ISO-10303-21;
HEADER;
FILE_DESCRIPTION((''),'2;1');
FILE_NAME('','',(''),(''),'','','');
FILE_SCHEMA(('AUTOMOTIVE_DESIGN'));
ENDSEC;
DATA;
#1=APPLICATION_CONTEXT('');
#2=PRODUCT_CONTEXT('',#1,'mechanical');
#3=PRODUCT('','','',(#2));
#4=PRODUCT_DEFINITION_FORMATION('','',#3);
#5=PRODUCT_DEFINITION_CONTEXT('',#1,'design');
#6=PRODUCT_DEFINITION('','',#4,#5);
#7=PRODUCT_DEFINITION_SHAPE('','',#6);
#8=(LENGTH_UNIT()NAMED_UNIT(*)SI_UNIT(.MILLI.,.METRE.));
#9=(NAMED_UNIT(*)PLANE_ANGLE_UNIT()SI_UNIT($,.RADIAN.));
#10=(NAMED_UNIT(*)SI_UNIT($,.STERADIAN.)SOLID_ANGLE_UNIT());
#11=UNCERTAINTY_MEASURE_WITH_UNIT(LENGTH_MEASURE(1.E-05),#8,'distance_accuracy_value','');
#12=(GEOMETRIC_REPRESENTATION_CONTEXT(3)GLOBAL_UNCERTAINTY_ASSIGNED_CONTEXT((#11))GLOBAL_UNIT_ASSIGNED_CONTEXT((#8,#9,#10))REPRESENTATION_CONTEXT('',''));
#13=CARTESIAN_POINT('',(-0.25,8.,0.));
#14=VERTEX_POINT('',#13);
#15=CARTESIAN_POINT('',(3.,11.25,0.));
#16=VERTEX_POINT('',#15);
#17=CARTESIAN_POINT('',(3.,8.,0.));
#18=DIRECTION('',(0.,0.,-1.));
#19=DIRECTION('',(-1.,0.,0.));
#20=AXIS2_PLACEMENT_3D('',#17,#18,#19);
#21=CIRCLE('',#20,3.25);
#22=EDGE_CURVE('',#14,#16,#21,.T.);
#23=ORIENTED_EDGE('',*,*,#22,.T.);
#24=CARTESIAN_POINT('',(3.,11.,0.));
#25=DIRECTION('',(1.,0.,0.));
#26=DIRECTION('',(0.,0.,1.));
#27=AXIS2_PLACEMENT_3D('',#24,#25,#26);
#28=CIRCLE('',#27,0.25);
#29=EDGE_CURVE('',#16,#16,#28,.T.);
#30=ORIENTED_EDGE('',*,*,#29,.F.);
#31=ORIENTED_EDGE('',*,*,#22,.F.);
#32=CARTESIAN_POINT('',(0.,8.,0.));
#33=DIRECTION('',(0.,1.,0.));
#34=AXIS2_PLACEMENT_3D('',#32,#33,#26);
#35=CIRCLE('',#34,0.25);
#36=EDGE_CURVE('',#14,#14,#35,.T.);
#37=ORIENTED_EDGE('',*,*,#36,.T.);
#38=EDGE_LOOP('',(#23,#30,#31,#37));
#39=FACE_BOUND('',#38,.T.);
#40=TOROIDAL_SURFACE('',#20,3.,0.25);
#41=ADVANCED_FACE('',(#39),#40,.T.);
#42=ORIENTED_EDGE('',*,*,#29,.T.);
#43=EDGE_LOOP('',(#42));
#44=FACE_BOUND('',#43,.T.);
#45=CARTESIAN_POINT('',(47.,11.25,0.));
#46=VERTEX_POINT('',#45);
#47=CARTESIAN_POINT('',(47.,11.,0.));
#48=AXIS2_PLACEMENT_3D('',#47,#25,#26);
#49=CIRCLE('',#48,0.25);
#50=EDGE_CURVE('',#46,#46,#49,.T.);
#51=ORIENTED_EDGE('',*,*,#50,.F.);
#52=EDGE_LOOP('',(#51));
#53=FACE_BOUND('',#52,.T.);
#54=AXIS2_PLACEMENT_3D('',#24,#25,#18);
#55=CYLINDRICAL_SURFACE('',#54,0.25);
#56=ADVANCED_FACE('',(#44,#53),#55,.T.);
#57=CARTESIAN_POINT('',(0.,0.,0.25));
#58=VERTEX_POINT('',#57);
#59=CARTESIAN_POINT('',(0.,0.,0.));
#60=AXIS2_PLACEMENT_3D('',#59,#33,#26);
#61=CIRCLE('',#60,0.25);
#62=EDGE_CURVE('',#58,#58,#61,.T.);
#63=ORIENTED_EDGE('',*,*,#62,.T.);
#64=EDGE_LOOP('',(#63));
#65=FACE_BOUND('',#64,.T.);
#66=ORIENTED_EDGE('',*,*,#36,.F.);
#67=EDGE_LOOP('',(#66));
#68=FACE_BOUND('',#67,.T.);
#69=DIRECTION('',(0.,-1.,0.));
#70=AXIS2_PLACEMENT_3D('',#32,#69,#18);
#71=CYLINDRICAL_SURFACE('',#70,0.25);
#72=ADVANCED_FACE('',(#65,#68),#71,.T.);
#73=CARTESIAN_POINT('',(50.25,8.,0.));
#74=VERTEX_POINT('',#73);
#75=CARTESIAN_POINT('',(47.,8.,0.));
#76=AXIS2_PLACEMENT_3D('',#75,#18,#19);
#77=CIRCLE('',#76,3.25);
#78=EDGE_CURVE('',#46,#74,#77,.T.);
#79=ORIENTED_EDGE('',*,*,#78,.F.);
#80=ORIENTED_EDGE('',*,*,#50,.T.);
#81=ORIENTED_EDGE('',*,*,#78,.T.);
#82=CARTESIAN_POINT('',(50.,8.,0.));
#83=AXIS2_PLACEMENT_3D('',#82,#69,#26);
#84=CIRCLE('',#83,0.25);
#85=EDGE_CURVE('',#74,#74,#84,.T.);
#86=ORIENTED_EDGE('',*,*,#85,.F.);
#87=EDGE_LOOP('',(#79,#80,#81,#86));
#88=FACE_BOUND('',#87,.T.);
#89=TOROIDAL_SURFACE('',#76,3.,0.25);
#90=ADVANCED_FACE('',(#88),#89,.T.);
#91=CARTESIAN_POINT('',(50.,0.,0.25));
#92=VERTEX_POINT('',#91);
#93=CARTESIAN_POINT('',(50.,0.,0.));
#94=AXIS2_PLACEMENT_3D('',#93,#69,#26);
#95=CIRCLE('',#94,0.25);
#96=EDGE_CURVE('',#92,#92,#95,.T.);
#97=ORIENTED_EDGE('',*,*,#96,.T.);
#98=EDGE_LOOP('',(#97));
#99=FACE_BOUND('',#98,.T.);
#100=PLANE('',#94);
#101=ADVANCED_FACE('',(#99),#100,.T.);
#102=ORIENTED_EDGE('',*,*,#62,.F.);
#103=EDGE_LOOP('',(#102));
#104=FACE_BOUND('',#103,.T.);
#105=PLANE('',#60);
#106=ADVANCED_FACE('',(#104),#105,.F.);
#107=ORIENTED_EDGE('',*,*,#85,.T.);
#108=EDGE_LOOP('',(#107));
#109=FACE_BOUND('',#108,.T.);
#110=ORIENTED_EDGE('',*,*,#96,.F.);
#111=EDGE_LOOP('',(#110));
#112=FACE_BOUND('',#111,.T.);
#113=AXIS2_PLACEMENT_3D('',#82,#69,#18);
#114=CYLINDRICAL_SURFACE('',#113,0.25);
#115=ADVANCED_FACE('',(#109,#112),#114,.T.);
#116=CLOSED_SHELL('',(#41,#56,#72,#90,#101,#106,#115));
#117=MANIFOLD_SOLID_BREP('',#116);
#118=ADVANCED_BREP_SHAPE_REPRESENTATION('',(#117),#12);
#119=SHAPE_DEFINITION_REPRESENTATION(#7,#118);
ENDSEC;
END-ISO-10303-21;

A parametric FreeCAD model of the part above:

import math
import FreeCAD as App
import Part
import Sketcher
from FreeCAD import Vector
Q = App.Units.Quantity

doc = App.newDocument("Part")
params = doc.addObject("Spreadsheet::Sheet", "Params")
for row, (alias, value) in enumerate([
    ("sketch1_diameter", "0.5 mm"),
    ("sketch2_radius", "3 mm"),
    ("sketch2_width", "44 mm"),
    ("sketch2_height", "8 mm"),
], start=1):
    params.set(f"A{row}", alias)
    params.set(f"B{row}", "=" + value)
    params.setAlias(f"B{row}", alias)

body = doc.addObject("PartDesign::Body", "Body")

# Sketch on XZ plane
sketch1 = body.newObject("Sketcher::SketchObject", "Sketch")
sketch1.AttachmentSupport = (doc.getObject("XZ_Plane"), [""])
sketch1.MapMode = "FlatFace"
sketch1.addGeometry(Part.Circle(Vector(0, 0, 0), Vector(0, 0, 1), 0.25), False)
sketch1.addConstraint(Sketcher.Constraint("Coincident", 0, 3, -1, 1))
sketch1.addConstraint(Sketcher.Constraint("Diameter", 0, Q("0.5 mm")))
sketch1.setExpression("Constraints[1]", "Params.sketch1_diameter")

# Sketch on XY plane
sketch2 = body.newObject("Sketcher::SketchObject", "Sketch001")
sketch2.AttachmentSupport = (doc.getObject("XY_Plane"), [""])
sketch2.MapMode = "FlatFace"
sketch2.addGeometry(Part.LineSegment(Vector(0, 0, 0), Vector(0, 8, 0)), False)
sketch2.addGeometry(Part.ArcOfCircle(Part.Circle(Vector(3, 8, 0), Vector(0, 0, 1), 3), math.radians(90), math.radians(180)), False)
sketch2.addGeometry(Part.LineSegment(Vector(3, 11, 0), Vector(47, 11, 0)), False)
sketch2.addGeometry(Part.ArcOfCircle(Part.Circle(Vector(47, 8, 0), Vector(0, 0, 1), 3), math.radians(0), math.radians(90)), False)
sketch2.addGeometry(Part.LineSegment(Vector(50, 8, 0), Vector(50, 0, 0)), False)
sketch2.addConstraint(Sketcher.Constraint("Tangent", 0, 2, 1, 2))
sketch2.addConstraint(Sketcher.Constraint("Tangent", 1, 1, 2, 1))
sketch2.addConstraint(Sketcher.Constraint("Tangent", 2, 2, 3, 2))
sketch2.addConstraint(Sketcher.Constraint("Tangent", 3, 1, 4, 1))
sketch2.addConstraint(Sketcher.Constraint("Vertical", 0))
sketch2.addConstraint(Sketcher.Constraint("Horizontal", 2))
sketch2.addConstraint(Sketcher.Constraint("Vertical", 4))
sketch2.addConstraint(Sketcher.Constraint("Coincident", 0, 1, -1, 1))
sketch2.addConstraint(Sketcher.Constraint("Equal", 1, 3))
sketch2.addConstraint(Sketcher.Constraint("PointOnObject", 4, 2, -1))
sketch2.addConstraint(Sketcher.Constraint("Radius", 1, Q("3 mm")))
sketch2.addConstraint(Sketcher.Constraint("DistanceX", 2, 1, 2, 2, Q("44 mm")))
sketch2.addConstraint(Sketcher.Constraint("DistanceY", 0, 1, 0, 2, Q("8 mm")))
sketch2.setExpression("Constraints[10]", "Params.sketch2_radius")
sketch2.setExpression("Constraints[11]", "Params.sketch2_width")
sketch2.setExpression("Constraints[12]", "Params.sketch2_height")
doc.recompute()

additivepipe = body.newObject("PartDesign::AdditivePipe", "AdditivePipe")
additivepipe.Profile = sketch1
additivepipe.Spine = (sketch2, ["Edge1", "Edge2", "Edge3", "Edge4", "Edge5"])

doc.recompute()
